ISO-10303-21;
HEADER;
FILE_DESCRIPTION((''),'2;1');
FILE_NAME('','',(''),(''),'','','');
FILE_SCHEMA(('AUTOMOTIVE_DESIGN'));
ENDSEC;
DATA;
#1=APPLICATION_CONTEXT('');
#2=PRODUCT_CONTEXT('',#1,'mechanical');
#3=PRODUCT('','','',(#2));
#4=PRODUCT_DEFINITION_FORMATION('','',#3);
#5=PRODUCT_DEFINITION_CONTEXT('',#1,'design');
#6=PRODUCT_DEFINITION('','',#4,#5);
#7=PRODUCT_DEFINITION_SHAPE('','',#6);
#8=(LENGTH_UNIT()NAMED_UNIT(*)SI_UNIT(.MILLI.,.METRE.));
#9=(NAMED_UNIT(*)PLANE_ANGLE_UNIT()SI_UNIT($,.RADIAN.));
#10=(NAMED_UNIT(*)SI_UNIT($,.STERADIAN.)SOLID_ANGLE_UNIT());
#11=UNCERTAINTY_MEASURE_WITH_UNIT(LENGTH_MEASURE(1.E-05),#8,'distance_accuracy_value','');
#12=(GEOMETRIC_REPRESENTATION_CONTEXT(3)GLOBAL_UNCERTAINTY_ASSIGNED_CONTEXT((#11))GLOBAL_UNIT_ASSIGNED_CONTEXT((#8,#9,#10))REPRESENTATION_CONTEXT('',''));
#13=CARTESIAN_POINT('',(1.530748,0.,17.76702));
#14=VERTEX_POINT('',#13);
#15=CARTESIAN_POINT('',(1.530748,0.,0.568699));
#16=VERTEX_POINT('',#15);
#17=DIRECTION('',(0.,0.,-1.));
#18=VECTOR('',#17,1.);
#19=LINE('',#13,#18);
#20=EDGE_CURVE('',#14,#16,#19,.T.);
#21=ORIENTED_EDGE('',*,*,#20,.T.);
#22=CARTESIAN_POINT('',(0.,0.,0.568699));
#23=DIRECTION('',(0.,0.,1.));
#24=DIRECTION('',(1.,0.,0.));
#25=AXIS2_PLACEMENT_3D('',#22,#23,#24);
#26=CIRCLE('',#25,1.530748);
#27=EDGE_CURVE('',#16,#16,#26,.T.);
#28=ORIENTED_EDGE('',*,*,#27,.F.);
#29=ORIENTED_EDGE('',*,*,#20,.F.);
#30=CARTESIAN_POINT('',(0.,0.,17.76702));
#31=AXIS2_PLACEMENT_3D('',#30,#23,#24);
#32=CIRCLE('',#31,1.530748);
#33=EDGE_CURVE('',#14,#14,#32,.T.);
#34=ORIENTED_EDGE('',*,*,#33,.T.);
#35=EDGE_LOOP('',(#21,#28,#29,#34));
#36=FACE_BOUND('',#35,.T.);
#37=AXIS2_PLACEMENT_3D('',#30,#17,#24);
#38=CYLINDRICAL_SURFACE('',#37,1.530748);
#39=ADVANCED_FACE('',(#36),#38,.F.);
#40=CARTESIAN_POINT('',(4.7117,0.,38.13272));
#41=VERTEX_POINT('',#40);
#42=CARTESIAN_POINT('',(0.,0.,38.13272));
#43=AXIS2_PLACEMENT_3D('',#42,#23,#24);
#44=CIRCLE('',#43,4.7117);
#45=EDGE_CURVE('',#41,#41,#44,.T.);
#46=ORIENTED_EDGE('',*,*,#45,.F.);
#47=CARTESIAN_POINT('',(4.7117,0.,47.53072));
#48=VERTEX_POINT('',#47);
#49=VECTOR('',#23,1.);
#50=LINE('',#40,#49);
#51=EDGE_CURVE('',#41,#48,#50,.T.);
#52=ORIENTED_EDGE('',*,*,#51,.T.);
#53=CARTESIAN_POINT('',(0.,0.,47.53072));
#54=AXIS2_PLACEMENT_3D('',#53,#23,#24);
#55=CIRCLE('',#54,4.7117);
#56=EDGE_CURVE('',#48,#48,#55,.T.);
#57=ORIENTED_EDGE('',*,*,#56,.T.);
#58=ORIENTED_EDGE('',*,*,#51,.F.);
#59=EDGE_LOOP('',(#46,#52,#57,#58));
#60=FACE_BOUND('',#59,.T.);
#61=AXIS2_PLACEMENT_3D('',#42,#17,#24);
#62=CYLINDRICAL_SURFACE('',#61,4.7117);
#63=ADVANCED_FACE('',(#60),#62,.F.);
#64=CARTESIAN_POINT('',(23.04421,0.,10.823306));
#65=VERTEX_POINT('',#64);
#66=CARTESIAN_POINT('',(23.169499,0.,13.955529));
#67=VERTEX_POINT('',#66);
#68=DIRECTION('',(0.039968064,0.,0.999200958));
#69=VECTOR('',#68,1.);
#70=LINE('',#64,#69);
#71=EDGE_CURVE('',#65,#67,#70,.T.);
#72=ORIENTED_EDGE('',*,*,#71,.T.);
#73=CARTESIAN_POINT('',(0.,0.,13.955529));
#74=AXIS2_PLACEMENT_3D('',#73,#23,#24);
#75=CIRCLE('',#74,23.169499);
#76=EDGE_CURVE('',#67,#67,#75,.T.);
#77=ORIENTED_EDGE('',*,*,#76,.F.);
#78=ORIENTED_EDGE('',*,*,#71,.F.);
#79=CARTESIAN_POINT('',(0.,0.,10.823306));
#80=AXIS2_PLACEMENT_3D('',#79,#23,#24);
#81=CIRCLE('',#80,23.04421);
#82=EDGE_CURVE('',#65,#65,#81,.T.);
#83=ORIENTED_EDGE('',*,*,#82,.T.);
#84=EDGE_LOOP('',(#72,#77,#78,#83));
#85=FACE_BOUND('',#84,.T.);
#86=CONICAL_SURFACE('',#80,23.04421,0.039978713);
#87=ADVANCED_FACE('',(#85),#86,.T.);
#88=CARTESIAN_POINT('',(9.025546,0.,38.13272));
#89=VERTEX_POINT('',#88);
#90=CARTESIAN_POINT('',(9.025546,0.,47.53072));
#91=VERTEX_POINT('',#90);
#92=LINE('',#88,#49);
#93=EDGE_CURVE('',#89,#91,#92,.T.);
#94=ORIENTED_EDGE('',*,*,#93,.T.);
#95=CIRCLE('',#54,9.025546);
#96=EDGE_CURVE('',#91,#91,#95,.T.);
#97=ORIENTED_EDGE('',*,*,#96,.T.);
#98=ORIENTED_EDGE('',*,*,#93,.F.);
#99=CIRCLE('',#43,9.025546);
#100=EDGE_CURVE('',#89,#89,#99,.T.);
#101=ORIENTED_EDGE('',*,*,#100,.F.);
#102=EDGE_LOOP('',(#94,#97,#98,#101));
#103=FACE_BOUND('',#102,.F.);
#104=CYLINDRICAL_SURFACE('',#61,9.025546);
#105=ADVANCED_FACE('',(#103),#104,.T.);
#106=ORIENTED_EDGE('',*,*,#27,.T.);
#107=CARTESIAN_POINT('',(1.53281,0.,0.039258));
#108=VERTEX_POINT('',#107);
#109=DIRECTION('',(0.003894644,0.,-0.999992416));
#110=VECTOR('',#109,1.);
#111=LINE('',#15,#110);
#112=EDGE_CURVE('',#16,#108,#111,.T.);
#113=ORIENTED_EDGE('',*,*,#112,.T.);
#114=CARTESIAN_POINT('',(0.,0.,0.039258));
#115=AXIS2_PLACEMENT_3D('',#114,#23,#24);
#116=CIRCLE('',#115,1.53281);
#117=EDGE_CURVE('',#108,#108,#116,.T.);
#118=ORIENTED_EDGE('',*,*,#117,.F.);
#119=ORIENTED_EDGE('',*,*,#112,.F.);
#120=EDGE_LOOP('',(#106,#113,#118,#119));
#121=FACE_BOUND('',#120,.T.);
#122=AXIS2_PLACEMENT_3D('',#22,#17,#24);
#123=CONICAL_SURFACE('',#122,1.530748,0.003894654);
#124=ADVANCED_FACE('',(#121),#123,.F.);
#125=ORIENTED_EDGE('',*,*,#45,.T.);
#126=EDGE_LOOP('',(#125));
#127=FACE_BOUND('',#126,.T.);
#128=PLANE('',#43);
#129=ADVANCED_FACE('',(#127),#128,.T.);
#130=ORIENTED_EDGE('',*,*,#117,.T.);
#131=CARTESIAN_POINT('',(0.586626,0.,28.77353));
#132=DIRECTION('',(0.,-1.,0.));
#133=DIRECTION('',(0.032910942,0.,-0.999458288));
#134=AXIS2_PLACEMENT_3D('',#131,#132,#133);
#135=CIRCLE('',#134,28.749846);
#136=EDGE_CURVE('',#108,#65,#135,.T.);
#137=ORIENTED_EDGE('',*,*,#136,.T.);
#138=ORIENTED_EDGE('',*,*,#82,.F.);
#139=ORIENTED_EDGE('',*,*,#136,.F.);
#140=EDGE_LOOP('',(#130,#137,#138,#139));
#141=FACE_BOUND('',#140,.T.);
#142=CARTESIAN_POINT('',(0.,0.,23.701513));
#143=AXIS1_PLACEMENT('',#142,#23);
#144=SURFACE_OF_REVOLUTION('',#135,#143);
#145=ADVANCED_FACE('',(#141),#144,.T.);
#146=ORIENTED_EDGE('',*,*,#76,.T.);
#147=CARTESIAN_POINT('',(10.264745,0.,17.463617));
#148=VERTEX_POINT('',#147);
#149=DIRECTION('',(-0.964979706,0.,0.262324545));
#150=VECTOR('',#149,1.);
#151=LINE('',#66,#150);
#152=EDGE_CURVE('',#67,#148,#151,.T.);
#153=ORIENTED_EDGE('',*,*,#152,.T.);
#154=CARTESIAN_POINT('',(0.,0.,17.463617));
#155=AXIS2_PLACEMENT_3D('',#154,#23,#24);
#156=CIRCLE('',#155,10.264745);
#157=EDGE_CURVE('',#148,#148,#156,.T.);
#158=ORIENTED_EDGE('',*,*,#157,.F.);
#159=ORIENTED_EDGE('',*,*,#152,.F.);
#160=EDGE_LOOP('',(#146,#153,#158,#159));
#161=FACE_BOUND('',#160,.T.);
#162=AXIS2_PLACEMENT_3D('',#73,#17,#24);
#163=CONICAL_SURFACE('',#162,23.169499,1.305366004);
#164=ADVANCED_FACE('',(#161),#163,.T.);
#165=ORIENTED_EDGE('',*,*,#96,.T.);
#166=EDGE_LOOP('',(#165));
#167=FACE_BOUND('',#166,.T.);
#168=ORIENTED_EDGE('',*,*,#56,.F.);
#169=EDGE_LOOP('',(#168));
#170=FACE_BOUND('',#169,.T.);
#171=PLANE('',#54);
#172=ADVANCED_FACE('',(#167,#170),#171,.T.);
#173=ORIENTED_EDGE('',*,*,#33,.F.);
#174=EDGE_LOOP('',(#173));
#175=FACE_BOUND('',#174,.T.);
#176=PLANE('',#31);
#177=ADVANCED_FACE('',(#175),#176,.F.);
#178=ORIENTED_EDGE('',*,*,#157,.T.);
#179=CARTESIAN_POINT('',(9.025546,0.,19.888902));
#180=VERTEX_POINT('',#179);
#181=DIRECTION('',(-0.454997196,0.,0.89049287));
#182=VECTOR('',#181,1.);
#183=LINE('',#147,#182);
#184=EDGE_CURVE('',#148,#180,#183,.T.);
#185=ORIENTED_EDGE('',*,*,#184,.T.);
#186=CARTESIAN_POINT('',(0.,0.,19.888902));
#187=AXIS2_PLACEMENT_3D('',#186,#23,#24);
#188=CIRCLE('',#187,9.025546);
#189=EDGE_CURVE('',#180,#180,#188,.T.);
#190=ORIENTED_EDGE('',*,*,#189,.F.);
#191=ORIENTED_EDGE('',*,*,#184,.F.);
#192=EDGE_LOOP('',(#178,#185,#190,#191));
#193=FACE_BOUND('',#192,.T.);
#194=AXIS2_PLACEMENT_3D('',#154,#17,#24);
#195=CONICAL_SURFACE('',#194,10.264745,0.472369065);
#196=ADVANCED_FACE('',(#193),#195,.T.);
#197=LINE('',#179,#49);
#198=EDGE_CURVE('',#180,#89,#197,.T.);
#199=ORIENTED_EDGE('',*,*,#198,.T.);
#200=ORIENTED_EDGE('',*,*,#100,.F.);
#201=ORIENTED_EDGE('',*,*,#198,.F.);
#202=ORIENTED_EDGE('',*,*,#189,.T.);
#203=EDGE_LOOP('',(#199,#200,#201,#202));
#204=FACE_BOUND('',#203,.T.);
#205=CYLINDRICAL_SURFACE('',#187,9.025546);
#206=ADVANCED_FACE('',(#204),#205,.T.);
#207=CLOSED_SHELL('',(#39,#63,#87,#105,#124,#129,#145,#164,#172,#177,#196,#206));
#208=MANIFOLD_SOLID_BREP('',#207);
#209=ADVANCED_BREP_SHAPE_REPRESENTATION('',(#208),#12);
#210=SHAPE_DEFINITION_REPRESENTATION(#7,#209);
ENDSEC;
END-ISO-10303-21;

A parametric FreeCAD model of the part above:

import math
import FreeCAD as App
import Part
import Sketcher
from FreeCAD import Vector
Q = App.Units.Quantity

doc = App.newDocument("Part")
body = doc.addObject("PartDesign::Body", "Body")

# Sketch on XZ plane
sketch1 = doc.addObject("Sketcher::SketchObject", "Sketch")
body.addObject(sketch1)
sketch1.AttachmentSupport = (doc.XZ_Plane, [""])
sketch1.MapMode = "FlatFace"
sketch1.addGeometry(Part.LineSegment(Vector(0, 38.1, 0), Vector(0, 17.8, 0)), False)
sketch1.addGeometry(Part.LineSegment(Vector(0, 17.8, 0), Vector(1.5, 17.8, 0)), False)
sketch1.addGeometry(Part.LineSegment(Vector(1.5, 17.8, 0), Vector(1.5, 0.6, 0)), False)
sketch1.addGeometry(Part.LineSegment(Vector(1.5, 0.6, 0), Vector(1.5, 0, 0)), False)
sketch1.addGeometry(Part.ArcOfCircle(Part.Circle(Vector(0.6, 28.8, 0), Vector(0, 0, 1), 28.7), math.radians(-88), math.radians(-39)), False)
sketch1.addGeometry(Part.LineSegment(Vector(23, 10.8, 0), Vector(23.2, 14, 0)), False)
sketch1.addGeometry(Part.LineSegment(Vector(23.2, 14, 0), Vector(10.3, 17.5, 0)), False)
sketch1.addGeometry(Part.LineSegment(Vector(10.3, 17.5, 0), Vector(9, 19.9, 0)), False)
sketch1.addGeometry(Part.LineSegment(Vector(9, 19.9, 0), Vector(9, 38.1, 0)), False)
sketch1.addGeometry(Part.LineSegment(Vector(9, 38.1, 0), Vector(0, 38.1, 0)), False)
sketch1.addConstraint(Sketcher.Constraint("Coincident", 0, 2, 1, 1))
sketch1.addConstraint(Sketcher.Constraint("Coincident", 1, 2, 2, 1))
sketch1.addConstraint(Sketcher.Constraint("Coincident", 2, 2, 3, 1))
sketch1.addConstraint(Sketcher.Constraint("Coincident", 3, 2, 4, 1))
sketch1.addConstraint(Sketcher.Constraint("Coincident", 4, 2, 5, 1))
sketch1.addConstraint(Sketcher.Constraint("Coincident", 5, 2, 6, 1))
sketch1.addConstraint(Sketcher.Constraint("Coincident", 6, 2, 7, 1))
sketch1.addConstraint(Sketcher.Constraint("Coincident", 7, 2, 8, 1))
sketch1.addConstraint(Sketcher.Constraint("Coincident", 8, 2, 9, 1))
sketch1.addConstraint(Sketcher.Constraint("Coincident", 9, 2, 0, 1))
sketch1.addConstraint(Sketcher.Constraint("Vertical", 0))
sketch1.addConstraint(Sketcher.Constraint("Horizontal", 1))
sketch1.addConstraint(Sketcher.Constraint("Vertical", 2))
sketch1.addConstraint(Sketcher.Constraint("Vertical", 8))
sketch1.addConstraint(Sketcher.Constraint("Horizontal", 9))
sketch1.addConstraint(Sketcher.Constraint("PointOnObject", 0, 2, -2))
sketch1.addConstraint(Sketcher.Constraint("DistanceY", 0, 2, 0, 1, 20.3657))
sketch1.addConstraint(Sketcher.Constraint("Radius", 4, 28.749846))
sketch1.addConstraint(Sketcher.Constraint("DistanceY", 2, 2, 2, 1, 17.198321))
sketch1.addConstraint(Sketcher.Constraint("DistanceY", -1, 1, 2, 2, 0.568699))
sketch1.addConstraint(Sketcher.Constraint("DistanceX", -1, 1, 5, 2, 23.169499))
sketch1.addConstraint(Sketcher.Constraint("DistanceX", 3, 2, 4, 2, 21.5114))
sketch1.addConstraint(Sketcher.Constraint("DistanceX", 7, 2, 6, 2, 1.239199))
sketch1.addConstraint(Sketcher.Constraint("DistanceX", 1, 2, 7, 2, 7.494798))
sketch1.addConstraint(Sketcher.Constraint("Distance", 7, 2.723531))
sketch1.addConstraint(Sketcher.Constraint("DistanceX", 1, 1, 1, 2, 1.530748))
sketch1.addConstraint(Sketcher.Constraint("DistanceY", 8, 1, 8, 2, 18.243818))
sketch1.addConstraint(Sketcher.Constraint("DistanceY", -1, 1, 4, 3, 28.77353))
sketch1.addConstraint(Sketcher.Constraint("DistanceX", -1, 1, 3, 2, 1.53281))
sketch1.addConstraint(Sketcher.Constraint("DistanceY", -1, 1, 5, 2, 13.955529))
sketch1.addConstraint(Sketcher.Constraint("DistanceY", 3, 2, 2, 2, 0.529441))
revolution = doc.addObject("PartDesign::Revolution", "Revolution")
body.addObject(revolution)
revolution.Profile = sketch1
revolution.ReferenceAxis = (sketch1, ["V_Axis"])
revolution.Angle = 360

# Sketch on XY plane
sketch2 = doc.addObject("Sketcher::SketchObject", "Sketch001")
body.addObject(sketch2)
sketch2.AttachmentSupport = (doc.XY_Plane, [""])
sketch2.MapMode = "FlatFace"
sketch2.AttachmentOffset = App.Placement(Vector(0, 0, 38.13272), App.Rotation())
sketch2.addGeometry(Part.Circle(Vector(0, 0, 0), Vector(0, 0, 1), 9), False)
sketch2.addGeometry(Part.Circle(Vector(0, 0, 0), Vector(0, 0, 1), 4.7), False)
sketch2.addConstraint(Sketcher.Constraint("Coincident", 0, 3, -1, 1))
sketch2.addConstraint(Sketcher.Constraint("Coincident", 1, 3, -1, 1))
sketch2.addConstraint(Sketcher.Constraint("Diameter", 1, Q("0.371 in")))
sketch2.addConstraint(Sketcher.Constraint("Diameter", 0, 18.051092))
pad1 = doc.addObject("PartDesign::Pad", "Pad")
body.addObject(pad1)
pad1.Profile = sketch2
pad1.Length = Q("0.37 in")

doc.recompute()
